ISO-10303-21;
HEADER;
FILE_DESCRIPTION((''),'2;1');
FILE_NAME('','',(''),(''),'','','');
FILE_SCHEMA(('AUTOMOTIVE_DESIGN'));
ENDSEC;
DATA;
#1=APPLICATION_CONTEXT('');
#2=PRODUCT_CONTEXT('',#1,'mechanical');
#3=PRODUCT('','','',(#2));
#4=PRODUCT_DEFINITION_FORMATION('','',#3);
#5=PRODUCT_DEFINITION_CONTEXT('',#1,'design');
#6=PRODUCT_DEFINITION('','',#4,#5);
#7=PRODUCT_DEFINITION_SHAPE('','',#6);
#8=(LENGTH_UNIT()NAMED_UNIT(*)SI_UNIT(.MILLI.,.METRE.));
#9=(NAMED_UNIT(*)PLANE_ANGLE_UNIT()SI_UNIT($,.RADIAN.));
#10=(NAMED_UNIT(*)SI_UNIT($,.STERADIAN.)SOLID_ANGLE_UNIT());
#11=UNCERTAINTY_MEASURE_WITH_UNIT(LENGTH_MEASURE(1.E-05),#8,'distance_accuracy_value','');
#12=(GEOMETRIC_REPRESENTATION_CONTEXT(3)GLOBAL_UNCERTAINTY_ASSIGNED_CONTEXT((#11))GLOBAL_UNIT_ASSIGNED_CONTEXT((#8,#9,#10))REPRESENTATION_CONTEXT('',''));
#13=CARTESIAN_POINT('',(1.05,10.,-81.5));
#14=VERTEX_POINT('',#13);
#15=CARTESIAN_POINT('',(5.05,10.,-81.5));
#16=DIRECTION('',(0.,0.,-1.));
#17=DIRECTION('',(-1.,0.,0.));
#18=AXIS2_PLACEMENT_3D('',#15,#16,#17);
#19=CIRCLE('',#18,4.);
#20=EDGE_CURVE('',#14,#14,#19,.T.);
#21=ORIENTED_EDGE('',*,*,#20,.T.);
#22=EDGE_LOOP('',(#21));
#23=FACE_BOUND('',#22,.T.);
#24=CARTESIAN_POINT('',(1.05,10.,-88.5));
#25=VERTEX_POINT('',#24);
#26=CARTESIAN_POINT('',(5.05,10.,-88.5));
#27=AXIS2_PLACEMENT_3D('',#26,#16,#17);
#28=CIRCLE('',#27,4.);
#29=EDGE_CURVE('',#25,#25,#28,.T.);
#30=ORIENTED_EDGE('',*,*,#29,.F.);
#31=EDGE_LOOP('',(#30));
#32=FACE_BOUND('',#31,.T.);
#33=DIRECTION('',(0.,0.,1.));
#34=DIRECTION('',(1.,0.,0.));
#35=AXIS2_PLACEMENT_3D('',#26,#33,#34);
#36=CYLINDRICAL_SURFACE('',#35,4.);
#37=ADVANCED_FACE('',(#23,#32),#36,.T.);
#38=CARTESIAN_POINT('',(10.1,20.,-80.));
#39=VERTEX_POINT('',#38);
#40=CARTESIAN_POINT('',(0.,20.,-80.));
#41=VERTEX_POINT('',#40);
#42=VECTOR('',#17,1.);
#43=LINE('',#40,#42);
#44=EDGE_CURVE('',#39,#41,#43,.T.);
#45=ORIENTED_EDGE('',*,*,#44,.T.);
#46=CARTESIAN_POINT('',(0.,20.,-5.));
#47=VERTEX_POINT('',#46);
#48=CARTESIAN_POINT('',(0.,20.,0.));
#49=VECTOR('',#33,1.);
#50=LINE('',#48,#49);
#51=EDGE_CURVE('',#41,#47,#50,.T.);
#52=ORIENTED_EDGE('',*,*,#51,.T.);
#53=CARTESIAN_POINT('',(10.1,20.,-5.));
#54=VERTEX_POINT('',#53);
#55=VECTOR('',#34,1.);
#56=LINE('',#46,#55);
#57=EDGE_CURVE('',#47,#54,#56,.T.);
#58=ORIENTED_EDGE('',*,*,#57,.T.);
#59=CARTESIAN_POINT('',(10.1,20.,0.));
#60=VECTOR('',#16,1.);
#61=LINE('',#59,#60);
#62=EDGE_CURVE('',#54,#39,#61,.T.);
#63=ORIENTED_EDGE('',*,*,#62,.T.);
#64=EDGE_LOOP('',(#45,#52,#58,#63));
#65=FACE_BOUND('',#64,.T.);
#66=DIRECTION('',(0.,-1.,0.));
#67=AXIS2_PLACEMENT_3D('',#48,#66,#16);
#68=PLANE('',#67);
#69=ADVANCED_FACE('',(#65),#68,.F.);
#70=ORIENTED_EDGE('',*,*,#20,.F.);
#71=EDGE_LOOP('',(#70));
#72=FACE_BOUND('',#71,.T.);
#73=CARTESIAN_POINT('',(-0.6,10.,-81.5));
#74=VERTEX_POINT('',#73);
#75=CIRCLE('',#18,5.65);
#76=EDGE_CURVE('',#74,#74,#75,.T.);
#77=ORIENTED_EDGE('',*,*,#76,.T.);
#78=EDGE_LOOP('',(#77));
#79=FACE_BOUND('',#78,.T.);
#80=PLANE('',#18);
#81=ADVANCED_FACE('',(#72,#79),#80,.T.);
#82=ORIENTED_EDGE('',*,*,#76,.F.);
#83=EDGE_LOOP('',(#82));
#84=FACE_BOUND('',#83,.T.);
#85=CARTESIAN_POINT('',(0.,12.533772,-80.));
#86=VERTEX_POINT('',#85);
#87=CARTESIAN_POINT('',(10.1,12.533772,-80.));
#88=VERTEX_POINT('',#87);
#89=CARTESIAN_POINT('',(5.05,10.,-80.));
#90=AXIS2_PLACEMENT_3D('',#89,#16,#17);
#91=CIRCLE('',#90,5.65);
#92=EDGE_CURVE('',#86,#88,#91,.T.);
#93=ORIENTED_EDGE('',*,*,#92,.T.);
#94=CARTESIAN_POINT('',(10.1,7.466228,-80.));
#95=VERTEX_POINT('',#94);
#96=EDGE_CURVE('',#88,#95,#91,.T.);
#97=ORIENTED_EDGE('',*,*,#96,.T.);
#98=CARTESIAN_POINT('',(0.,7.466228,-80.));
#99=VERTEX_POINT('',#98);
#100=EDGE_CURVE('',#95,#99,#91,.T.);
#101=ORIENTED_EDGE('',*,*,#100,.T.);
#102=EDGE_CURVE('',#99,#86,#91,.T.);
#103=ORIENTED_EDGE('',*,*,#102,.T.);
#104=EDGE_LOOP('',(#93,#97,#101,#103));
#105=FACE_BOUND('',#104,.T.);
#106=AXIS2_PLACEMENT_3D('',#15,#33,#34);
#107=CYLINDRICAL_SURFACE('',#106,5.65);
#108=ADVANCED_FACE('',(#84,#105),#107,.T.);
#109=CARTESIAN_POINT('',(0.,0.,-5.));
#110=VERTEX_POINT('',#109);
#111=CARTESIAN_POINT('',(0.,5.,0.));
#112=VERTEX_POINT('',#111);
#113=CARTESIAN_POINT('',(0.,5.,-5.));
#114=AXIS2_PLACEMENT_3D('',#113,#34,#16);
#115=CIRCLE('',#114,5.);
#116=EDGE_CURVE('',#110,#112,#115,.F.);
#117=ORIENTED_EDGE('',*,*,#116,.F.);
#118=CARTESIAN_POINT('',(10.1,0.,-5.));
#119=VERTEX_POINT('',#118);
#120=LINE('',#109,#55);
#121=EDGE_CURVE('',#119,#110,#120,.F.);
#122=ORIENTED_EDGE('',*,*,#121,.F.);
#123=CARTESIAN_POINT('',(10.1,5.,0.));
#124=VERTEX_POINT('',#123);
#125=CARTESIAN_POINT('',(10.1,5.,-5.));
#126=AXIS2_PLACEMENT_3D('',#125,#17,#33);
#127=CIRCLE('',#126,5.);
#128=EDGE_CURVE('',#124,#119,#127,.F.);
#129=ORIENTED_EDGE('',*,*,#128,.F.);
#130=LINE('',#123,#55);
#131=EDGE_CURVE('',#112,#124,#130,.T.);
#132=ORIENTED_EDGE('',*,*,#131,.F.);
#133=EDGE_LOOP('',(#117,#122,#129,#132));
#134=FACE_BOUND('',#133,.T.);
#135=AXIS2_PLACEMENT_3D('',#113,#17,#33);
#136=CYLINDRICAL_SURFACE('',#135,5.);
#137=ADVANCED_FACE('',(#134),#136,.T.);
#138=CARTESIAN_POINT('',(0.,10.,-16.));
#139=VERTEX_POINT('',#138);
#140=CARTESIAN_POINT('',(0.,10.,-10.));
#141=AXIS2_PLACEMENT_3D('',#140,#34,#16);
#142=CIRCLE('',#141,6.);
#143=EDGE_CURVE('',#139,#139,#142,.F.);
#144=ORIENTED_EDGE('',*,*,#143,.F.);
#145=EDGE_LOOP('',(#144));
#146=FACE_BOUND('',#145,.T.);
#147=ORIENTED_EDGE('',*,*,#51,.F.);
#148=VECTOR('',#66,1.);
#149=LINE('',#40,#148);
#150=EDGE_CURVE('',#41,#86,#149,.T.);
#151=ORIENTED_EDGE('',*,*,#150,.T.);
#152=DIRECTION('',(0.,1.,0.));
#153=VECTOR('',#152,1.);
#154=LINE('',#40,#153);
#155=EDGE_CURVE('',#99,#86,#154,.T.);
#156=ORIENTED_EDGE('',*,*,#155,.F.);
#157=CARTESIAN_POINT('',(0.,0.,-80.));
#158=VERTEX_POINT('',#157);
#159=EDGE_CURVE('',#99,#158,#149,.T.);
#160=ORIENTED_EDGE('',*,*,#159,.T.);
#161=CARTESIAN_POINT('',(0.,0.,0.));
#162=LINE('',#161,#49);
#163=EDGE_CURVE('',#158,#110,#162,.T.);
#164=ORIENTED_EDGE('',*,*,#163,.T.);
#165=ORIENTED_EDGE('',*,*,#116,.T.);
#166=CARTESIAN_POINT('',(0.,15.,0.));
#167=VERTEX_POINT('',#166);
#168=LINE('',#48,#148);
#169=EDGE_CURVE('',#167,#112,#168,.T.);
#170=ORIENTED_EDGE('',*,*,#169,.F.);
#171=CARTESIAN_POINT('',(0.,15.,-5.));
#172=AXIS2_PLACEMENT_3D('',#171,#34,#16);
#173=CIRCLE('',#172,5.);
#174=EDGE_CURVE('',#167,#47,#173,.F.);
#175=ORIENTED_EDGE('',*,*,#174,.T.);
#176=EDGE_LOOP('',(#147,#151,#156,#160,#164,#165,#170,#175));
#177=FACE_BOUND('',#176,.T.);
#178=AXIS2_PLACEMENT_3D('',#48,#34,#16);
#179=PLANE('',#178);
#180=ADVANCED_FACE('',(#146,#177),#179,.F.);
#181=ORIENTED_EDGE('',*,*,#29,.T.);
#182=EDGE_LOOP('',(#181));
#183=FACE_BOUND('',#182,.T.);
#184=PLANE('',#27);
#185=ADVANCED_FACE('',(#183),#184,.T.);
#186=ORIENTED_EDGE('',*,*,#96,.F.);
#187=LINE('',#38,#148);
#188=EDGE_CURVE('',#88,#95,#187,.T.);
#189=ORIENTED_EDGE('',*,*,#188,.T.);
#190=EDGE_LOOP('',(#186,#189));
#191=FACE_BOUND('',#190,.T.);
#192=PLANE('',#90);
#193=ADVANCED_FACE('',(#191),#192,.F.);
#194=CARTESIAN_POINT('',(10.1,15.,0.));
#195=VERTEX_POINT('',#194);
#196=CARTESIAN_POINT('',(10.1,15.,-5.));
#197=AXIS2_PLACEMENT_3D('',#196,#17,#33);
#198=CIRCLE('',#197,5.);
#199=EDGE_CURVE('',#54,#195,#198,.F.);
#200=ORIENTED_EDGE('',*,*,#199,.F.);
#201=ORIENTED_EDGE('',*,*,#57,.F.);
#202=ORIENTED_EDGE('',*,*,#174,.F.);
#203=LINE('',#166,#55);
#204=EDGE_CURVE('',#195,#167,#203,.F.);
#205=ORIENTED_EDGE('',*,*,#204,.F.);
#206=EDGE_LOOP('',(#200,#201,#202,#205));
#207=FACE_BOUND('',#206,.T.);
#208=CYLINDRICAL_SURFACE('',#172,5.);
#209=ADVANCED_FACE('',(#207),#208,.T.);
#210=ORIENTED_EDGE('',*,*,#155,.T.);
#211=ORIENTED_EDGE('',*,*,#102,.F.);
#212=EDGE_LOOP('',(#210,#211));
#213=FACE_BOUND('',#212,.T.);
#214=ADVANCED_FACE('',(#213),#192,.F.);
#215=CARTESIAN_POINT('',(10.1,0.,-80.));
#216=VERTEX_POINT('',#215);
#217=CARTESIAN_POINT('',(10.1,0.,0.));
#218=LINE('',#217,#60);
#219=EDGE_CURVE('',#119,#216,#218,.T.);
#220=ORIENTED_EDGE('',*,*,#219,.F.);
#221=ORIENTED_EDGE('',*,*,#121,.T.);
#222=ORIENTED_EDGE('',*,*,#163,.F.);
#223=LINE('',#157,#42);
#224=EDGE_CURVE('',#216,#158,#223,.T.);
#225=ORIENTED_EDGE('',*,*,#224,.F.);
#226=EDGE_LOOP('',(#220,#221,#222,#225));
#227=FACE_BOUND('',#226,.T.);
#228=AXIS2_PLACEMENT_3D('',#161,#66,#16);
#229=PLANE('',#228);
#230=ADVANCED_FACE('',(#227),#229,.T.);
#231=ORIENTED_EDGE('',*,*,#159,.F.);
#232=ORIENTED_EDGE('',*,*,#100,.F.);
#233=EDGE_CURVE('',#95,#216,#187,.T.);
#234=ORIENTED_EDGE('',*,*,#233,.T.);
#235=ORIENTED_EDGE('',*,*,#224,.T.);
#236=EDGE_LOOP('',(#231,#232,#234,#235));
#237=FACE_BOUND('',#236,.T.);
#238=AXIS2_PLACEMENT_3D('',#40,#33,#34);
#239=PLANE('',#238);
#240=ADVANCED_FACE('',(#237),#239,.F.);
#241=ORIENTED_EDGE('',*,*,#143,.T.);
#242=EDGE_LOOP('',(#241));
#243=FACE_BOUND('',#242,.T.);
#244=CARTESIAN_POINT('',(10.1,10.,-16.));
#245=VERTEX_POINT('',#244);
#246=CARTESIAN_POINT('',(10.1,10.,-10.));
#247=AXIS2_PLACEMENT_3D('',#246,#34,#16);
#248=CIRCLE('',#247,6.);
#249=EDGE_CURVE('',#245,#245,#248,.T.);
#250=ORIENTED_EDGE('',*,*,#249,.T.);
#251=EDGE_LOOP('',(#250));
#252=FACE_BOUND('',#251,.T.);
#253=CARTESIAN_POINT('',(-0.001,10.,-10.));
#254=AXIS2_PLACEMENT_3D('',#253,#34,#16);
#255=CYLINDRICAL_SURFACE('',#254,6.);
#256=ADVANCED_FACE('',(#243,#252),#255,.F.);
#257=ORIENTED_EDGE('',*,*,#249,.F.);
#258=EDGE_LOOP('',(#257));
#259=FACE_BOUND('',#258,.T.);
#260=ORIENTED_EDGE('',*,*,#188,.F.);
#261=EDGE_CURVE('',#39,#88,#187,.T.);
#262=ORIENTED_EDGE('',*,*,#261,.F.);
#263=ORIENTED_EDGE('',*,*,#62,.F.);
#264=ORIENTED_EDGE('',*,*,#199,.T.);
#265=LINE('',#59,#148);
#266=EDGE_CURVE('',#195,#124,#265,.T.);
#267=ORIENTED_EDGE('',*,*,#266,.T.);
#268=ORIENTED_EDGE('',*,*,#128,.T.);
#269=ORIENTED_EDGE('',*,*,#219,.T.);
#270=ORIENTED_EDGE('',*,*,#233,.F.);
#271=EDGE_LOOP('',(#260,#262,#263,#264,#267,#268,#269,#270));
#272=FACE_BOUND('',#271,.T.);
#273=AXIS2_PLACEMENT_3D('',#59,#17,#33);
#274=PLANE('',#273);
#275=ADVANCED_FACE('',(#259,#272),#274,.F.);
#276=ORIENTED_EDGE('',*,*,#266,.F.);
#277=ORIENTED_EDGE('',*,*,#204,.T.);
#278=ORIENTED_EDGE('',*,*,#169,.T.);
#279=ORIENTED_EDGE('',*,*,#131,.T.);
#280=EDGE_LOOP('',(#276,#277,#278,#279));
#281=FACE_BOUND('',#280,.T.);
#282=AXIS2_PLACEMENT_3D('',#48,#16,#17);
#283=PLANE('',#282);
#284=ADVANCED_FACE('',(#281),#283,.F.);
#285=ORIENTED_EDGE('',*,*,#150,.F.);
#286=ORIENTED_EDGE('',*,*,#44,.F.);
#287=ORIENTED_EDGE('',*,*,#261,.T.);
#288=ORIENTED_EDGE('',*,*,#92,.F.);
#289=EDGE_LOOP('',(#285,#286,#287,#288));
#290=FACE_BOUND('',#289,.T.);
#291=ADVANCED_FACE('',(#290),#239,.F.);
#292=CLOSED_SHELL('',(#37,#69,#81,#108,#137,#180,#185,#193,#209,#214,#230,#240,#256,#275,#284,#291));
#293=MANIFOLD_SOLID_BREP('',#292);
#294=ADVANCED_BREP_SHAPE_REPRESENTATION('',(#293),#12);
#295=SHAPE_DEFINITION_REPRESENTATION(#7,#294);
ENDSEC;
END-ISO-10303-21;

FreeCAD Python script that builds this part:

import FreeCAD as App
import Part
import Sketcher


def edges_at(feature, points):
    """Names of the edges that pass closest to the given points."""
    edges = feature.Shape.Edges
    near = lambda p: min(range(len(edges)), key=lambda i: edges[i].distToShape(Part.Vertex(*p))[0])
    return sorted({f"Edge{near(p) + 1}" for p in points})

doc = App.newDocument("Part")
body = doc.addObject("PartDesign::Body", "Body")

sketch1 = body.newObject("Sketcher::SketchObject", "Sketch")
sketch1.AttachmentSupport = (doc.getObject("XZ_Plane"), [""])
sketch1.MapMode = "FlatFace"
sketch1.addGeometry(Part.LineSegment(App.Vector(0, -80, 0), App.Vector(0, 0, 0)), False)
sketch1.addGeometry(Part.LineSegment(App.Vector(0, 0, 0), App.Vector(10, 0, 0)), False)
sketch1.addGeometry(Part.LineSegment(App.Vector(10, 0, 0), App.Vector(10, -80, 0)), False)
sketch1.addGeometry(Part.LineSegment(App.Vector(10, -80, 0), App.Vector(0, -80, 0)), False)
sketch1.addConstraint(Sketcher.Constraint("Coincident", 0, 2, 1, 1))
sketch1.addConstraint(Sketcher.Constraint("Coincident", 1, 2, 2, 1))
sketch1.addConstraint(Sketcher.Constraint("Coincident", 2, 2, 3, 1))
sketch1.addConstraint(Sketcher.Constraint("Coincident", 3, 2, 0, 1))
sketch1.addConstraint(Sketcher.Constraint("Vertical", 0))
sketch1.addConstraint(Sketcher.Constraint("Horizontal", 1))
sketch1.addConstraint(Sketcher.Constraint("Vertical", 2))
sketch1.addConstraint(Sketcher.Constraint("Horizontal", 3))
sketch1.addConstraint(Sketcher.Constraint("Coincident", 0, 2, -1, 1))
sketch1.addConstraint(Sketcher.Constraint("DistanceY", 0, 1, 0, 2, 80.0))
sketch1.addConstraint(Sketcher.Constraint("DistanceX", 1, 1, 1, 2, 10.1))
pad1 = body.newObject("PartDesign::Pad", "Pad")
pad1.Profile = sketch1
pad1.Length = 20
pad1.Reversed = True

sketch2 = body.newObject("Sketcher::SketchObject", "Sketch001")
sketch2.AttachmentSupport = (doc.getObject("YZ_Plane"), [""])
sketch2.MapMode = "FlatFace"
sketch2.AttachmentOffset = App.Placement(App.Vector(0, 0, 10.1), App.Rotation())
sketch2.addGeometry(Part.Circle(App.Vector(10, -10, 0), App.Vector(0, 0, 1), 6), False)
sketch2.addConstraint(Sketcher.Constraint("Diameter", 0, 12.0))
sketch2.addConstraint(Sketcher.Constraint("DistanceX", -1, 1, 0, 3, 10.0))
sketch2.addConstraint(Sketcher.Constraint("DistanceY", 0, 3, -1, 1, 10.0))
pocket1 = body.newObject("PartDesign::Pocket", "Pocket")
pocket1.Profile = sketch2
pocket1.Type = "UpToFirst"
doc.recompute()

fillet = body.newObject("PartDesign::Fillet", "Fillet")
fillet.Base = (pocket1, edges_at(pocket1, [(5.05, 0, 0), (5.05, 20, 0)]))
fillet.Radius = 5

sketch3 = body.newObject("Sketcher::SketchObject", "Sketch002")
sketch3.AttachmentSupport = (doc.getObject("XY_Plane"), [""])
sketch3.MapMode = "FlatFace"
sketch3.AttachmentOffset = App.Placement(App.Vector(0, 0, -80), App.Rotation())
sketch3.addGeometry(Part.Circle(App.Vector(5, 10, 0), App.Vector(0, 0, 1), 4), False)
sketch3.addConstraint(Sketcher.Constraint("Diameter", 0, 8.0))
sketch3.addConstraint(Sketcher.Constraint("DistanceY", -1, 1, 0, 3, 10.0))
sketch3.addConstraint(Sketcher.Constraint("DistanceX", -1, 1, 0, 3, 5.05))
pad2 = body.newObject("PartDesign::Pad", "Pad001")
pad2.Profile = sketch3
pad2.Length = 8.5
pad2.Reversed = True

sketch4 = body.newObject("Sketcher::SketchObject", "Sketch003")
sketch4.AttachmentSupport = (doc.getObject("XY_Plane"), [""])
sketch4.MapMode = "FlatFace"
sketch4.AttachmentOffset = App.Placement(App.Vector(0, 0, -80), App.Rotation())
sketch4.addGeometry(Part.Circle(App.Vector(5, 10, 0), App.Vector(0, 0, 1), 6), False)
sketch4.addConstraint(Sketcher.Constraint("Diameter", 0, 11.3))
sketch4.addConstraint(Sketcher.Constraint("DistanceY", -1, 1, 0, 3, 10.0))
sketch4.addConstraint(Sketcher.Constraint("DistanceX", -1, 1, 0, 3, 5.05))
pad3 = body.newObject("PartDesign::Pad", "Pad002")
pad3.Profile = sketch4
pad3.Length = 1.5
pad3.Reversed = True

doc.recompute()
